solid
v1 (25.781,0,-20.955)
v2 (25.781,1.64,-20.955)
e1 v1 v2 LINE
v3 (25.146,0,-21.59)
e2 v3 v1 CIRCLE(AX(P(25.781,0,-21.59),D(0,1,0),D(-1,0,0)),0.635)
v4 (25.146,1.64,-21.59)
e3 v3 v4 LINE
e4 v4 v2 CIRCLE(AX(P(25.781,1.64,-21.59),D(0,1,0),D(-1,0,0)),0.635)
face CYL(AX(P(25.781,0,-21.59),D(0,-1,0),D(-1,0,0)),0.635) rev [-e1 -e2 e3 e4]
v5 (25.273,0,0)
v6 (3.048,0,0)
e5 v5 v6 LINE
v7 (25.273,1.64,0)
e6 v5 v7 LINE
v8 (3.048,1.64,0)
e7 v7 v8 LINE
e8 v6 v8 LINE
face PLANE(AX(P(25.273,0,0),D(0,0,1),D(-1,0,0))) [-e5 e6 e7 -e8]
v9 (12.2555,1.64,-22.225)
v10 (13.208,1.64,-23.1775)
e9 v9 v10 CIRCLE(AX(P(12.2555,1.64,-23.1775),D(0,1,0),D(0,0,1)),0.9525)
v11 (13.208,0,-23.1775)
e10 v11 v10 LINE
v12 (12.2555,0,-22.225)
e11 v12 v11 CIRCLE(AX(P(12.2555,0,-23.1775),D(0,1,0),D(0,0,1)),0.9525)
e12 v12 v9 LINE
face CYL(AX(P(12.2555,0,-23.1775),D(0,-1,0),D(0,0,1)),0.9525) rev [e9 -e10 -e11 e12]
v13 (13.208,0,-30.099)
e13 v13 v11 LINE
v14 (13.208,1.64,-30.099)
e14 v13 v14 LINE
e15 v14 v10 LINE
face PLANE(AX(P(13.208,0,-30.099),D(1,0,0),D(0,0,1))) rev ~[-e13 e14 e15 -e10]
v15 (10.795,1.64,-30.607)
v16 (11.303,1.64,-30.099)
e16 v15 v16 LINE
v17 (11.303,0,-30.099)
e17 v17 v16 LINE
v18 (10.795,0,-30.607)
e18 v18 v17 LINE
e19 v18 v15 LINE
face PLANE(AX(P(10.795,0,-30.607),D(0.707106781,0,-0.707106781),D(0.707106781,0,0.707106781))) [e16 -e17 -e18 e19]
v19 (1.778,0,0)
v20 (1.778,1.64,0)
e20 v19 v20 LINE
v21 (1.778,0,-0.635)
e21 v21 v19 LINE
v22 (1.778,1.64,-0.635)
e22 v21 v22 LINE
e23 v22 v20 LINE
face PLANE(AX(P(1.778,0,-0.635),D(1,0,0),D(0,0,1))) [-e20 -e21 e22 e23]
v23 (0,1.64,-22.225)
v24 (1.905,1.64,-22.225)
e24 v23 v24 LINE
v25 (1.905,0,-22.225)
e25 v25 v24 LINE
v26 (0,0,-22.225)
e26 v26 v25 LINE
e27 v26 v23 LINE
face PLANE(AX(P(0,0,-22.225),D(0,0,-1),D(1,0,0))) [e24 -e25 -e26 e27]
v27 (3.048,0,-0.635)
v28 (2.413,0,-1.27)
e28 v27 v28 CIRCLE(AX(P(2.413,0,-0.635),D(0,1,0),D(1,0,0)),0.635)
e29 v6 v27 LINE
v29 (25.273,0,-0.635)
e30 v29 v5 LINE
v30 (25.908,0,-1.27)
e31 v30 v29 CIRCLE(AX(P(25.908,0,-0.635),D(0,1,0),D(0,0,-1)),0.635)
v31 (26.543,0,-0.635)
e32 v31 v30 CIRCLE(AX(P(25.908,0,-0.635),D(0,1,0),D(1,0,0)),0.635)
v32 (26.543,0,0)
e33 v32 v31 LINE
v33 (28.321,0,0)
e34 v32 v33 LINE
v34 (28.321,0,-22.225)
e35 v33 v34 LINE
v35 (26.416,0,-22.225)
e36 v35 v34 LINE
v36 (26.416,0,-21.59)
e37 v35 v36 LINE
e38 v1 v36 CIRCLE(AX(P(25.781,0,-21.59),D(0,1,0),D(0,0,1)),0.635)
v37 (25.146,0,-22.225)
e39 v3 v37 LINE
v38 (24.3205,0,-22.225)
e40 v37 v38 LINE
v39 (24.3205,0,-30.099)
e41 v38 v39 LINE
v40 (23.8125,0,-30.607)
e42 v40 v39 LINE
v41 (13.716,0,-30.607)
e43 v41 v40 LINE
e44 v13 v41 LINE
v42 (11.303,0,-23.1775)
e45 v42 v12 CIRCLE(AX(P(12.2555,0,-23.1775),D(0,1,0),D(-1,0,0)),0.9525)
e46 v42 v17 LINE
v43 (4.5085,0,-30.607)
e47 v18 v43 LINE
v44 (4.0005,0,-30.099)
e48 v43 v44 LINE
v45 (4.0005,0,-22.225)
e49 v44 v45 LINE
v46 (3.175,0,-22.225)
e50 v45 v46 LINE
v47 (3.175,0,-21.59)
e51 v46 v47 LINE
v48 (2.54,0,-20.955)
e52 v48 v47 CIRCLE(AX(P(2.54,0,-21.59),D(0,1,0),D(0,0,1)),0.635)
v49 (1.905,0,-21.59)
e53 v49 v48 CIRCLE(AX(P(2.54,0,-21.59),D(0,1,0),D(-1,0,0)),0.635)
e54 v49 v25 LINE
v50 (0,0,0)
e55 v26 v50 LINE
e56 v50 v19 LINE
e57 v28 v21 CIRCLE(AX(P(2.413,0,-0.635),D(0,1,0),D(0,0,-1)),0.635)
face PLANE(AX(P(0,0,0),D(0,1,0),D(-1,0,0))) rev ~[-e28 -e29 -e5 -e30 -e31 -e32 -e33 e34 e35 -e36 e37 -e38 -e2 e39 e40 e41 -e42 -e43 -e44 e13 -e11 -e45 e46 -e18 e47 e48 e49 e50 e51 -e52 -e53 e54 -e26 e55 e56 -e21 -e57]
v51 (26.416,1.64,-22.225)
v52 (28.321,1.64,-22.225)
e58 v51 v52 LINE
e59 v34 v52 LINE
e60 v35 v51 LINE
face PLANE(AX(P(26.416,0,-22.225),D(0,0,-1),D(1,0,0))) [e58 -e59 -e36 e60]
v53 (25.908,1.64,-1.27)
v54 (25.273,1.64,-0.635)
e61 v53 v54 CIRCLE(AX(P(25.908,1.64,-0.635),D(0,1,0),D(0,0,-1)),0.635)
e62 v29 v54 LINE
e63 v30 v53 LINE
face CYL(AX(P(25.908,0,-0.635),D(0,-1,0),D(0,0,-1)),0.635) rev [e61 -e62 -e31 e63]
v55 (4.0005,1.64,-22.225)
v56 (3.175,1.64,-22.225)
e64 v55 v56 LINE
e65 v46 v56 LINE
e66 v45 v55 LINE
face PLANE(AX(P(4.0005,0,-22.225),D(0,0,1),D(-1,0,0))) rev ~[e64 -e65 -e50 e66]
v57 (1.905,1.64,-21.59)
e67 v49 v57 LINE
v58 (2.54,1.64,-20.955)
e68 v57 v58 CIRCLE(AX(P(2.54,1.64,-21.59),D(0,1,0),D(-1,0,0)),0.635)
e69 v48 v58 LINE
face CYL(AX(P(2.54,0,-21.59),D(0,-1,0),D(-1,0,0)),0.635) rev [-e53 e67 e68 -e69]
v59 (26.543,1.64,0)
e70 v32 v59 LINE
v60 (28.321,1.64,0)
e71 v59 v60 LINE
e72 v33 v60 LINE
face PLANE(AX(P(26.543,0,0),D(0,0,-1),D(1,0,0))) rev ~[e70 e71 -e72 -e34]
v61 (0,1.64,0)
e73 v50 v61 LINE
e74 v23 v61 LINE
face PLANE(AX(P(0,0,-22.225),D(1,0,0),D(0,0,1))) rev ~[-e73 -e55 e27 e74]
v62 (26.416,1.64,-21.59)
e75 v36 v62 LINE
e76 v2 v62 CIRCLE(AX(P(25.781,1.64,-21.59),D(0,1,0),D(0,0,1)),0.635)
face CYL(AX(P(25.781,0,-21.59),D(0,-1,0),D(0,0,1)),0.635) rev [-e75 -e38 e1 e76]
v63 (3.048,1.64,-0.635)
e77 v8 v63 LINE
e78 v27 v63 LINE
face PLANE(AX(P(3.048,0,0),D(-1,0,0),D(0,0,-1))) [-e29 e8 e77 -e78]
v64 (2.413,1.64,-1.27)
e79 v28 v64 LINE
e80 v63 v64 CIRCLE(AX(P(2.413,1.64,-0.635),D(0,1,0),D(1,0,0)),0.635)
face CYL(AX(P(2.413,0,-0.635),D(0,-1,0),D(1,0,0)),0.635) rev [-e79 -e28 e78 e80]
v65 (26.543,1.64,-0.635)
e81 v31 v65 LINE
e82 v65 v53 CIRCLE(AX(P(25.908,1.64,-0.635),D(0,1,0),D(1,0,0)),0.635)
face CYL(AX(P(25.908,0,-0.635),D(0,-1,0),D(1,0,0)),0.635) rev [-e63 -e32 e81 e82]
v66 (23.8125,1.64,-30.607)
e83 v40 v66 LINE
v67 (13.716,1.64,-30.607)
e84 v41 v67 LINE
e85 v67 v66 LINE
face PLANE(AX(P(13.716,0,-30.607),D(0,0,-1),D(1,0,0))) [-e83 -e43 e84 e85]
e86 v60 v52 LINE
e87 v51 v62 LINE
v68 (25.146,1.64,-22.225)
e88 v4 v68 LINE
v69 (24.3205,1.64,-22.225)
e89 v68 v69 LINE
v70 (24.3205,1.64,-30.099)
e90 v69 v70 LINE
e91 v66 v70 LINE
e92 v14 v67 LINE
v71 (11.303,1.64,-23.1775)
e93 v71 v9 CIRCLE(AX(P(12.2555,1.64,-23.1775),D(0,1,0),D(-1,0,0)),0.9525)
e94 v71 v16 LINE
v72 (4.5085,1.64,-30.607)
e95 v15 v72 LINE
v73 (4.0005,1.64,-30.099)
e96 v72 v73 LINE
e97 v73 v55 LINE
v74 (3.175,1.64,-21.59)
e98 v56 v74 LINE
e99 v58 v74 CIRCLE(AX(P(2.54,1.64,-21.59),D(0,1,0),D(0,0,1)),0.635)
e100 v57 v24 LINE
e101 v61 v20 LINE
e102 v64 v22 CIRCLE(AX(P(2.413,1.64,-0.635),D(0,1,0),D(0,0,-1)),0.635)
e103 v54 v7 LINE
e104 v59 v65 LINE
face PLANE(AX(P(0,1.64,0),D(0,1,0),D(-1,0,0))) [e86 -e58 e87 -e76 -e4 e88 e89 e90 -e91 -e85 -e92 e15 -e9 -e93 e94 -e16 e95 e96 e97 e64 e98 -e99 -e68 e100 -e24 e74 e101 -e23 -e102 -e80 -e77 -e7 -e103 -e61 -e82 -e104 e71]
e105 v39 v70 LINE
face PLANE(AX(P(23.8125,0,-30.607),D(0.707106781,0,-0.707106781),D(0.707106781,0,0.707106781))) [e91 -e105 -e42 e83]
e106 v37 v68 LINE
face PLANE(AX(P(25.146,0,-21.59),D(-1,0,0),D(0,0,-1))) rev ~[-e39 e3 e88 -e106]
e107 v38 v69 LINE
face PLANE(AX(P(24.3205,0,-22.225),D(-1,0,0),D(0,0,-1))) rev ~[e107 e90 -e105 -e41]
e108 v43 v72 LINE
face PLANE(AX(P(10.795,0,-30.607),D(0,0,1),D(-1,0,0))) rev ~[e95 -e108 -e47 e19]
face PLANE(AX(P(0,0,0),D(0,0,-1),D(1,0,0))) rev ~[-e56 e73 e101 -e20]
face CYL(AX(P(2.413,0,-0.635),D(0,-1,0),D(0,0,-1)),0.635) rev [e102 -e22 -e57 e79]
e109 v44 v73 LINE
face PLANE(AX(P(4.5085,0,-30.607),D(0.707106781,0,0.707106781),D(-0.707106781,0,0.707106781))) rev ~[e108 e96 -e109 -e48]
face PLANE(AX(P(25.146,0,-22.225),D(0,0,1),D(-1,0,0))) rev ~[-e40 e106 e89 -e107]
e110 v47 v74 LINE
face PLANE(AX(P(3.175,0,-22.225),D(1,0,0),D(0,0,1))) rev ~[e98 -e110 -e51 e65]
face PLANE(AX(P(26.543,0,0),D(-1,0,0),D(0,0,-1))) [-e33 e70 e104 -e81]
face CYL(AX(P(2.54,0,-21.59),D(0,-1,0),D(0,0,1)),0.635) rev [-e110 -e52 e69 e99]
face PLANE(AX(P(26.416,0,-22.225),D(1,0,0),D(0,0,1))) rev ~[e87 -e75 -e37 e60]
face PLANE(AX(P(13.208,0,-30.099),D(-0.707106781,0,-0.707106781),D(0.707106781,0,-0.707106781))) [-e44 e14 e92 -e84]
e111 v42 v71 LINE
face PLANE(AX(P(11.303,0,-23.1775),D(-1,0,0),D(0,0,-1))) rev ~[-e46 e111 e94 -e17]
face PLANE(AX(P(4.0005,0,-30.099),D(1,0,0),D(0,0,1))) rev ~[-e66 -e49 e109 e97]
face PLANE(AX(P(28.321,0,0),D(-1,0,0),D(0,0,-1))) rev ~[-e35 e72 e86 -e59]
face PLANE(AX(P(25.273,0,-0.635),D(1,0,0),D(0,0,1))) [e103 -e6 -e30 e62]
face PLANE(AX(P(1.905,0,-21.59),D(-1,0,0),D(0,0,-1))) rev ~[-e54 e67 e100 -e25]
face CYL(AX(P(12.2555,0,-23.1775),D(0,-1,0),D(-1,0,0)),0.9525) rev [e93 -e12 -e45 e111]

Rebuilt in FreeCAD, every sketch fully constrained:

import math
import FreeCAD as App
import Part
import Sketcher
from FreeCAD import Vector
Q = App.Units.Quantity

doc = App.newDocument("Part")
body = doc.addObject("PartDesign::Body", "Body")

sketch1 = body.newObject("Sketcher::SketchObject", "Sketch")
sketch1.AttachmentSupport = (doc.getObject("XZ_Plane"), [""])
sketch1.MapMode = "FlatFace"
sketch1.addGeometry(Part.LineSegment(Vector(26.543, 0, 0), Vector(28.321, 0, 0)), False)
sketch1.addGeometry(Part.LineSegment(Vector(28.321, 0, 0), Vector(28.321, -22.225, 0)), False)
sketch1.addGeometry(Part.LineSegment(Vector(28.321, -22.225, 0), Vector(26.416, -22.225, 0)), False)
sketch1.addGeometry(Part.LineSegment(Vector(26.416, -22.225, 0), Vector(26.416, -21.59, 0)), False)
sketch1.addGeometry(Part.ArcOfCircle(Part.Circle(Vector(25.781, -21.59, 0), Vector(0, 0, 1), 0.635), math.radians(0), math.radians(180)), False)
sketch1.addGeometry(Part.LineSegment(Vector(25.146, -21.59, 0), Vector(25.146, -22.225, 0)), False)
sketch1.addGeometry(Part.LineSegment(Vector(25.146, -22.225, 0), Vector(24.3205, -22.225, 0)), False)
sketch1.addGeometry(Part.LineSegment(Vector(24.3205, -22.225, 0), Vector(24.3205, -30.099, 0)), False)
sketch1.addGeometry(Part.LineSegment(Vector(24.3205, -30.099, 0), Vector(23.8125, -30.607, 0)), False)
sketch1.addGeometry(Part.LineSegment(Vector(23.8125, -30.607, 0), Vector(13.716, -30.607, 0)), False)
sketch1.addGeometry(Part.LineSegment(Vector(13.716, -30.607, 0), Vector(13.208, -30.099, 0)), False)
sketch1.addGeometry(Part.LineSegment(Vector(13.208, -30.099, 0), Vector(13.208, -23.1775, 0)), False)
sketch1.addGeometry(Part.ArcOfCircle(Part.Circle(Vector(12.2555, -23.1775, 0), Vector(0, 0, 1), 0.9525), math.radians(0), math.radians(180)), False)
sketch1.addGeometry(Part.LineSegment(Vector(11.303, -23.1775, 0), Vector(11.303, -30.099, 0)), False)
sketch1.addGeometry(Part.LineSegment(Vector(11.303, -30.099, 0), Vector(10.795, -30.607, 0)), False)
sketch1.addGeometry(Part.LineSegment(Vector(10.795, -30.607, 0), Vector(4.5085, -30.607, 0)), False)
sketch1.addGeometry(Part.LineSegment(Vector(4.5085, -30.607, 0), Vector(4.0005, -30.099, 0)), False)
sketch1.addGeometry(Part.LineSegment(Vector(4.0005, -30.099, 0), Vector(4.0005, -22.225, 0)), False)
sketch1.addGeometry(Part.LineSegment(Vector(4.0005, -22.225, 0), Vector(3.175, -22.225, 0)), False)
sketch1.addGeometry(Part.LineSegment(Vector(3.175, -22.225, 0), Vector(3.175, -21.59, 0)), False)
sketch1.addGeometry(Part.ArcOfCircle(Part.Circle(Vector(2.54, -21.59, 0), Vector(0, 0, 1), 0.635), math.radians(0), math.radians(180)), False)
sketch1.addGeometry(Part.LineSegment(Vector(1.905, -21.59, 0), Vector(1.905, -22.225, 0)), False)
sketch1.addGeometry(Part.LineSegment(Vector(1.905, -22.225, 0), Vector(0, -22.225, 0)), False)
sketch1.addGeometry(Part.LineSegment(Vector(0, -22.225, 0), Vector(0, 0, 0)), False)
sketch1.addGeometry(Part.LineSegment(Vector(0, 0, 0), Vector(1.778, 0, 0)), False)
sketch1.addGeometry(Part.LineSegment(Vector(1.778, 0, 0), Vector(1.778, -0.635, 0)), False)
sketch1.addGeometry(Part.ArcOfCircle(Part.Circle(Vector(2.413, -0.635, 0), Vector(0, 0, 1), 0.635), math.radians(180), math.radians(360)), False)
sketch1.addGeometry(Part.LineSegment(Vector(3.048, -0.635, 0), Vector(3.048, 0, 0)), False)
sketch1.addGeometry(Part.LineSegment(Vector(3.048, 0, 0), Vector(25.273, 0, 0)), False)
sketch1.addGeometry(Part.LineSegment(Vector(25.273, 0, 0), Vector(25.273, -0.635, 0)), False)
sketch1.addGeometry(Part.ArcOfCircle(Part.Circle(Vector(25.908, -0.635, 0), Vector(0, 0, 1), 0.635), math.radians(180), math.radians(360)), False)
sketch1.addGeometry(Part.LineSegment(Vector(26.543, -0.635, 0), Vector(26.543, 0, 0)), False)
sketch1.addConstraint(Sketcher.Constraint("Coincident", 0, 2, 1, 1))
sketch1.addConstraint(Sketcher.Constraint("Coincident", 1, 2, 2, 1))
sketch1.addConstraint(Sketcher.Constraint("Coincident", 2, 2, 3, 1))
sketch1.addConstraint(Sketcher.Constraint("Tangent", 3, 2, 4, 1))
sketch1.addConstraint(Sketcher.Constraint("Tangent", 4, 2, 5, 1))
sketch1.addConstraint(Sketcher.Constraint("Coincident", 5, 2, 6, 1))
sketch1.addConstraint(Sketcher.Constraint("Coincident", 6, 2, 7, 1))
sketch1.addConstraint(Sketcher.Constraint("Coincident", 7, 2, 8, 1))
sketch1.addConstraint(Sketcher.Constraint("Coincident", 8, 2, 9, 1))
sketch1.addConstraint(Sketcher.Constraint("Coincident", 9, 2, 10, 1))
sketch1.addConstraint(Sketcher.Constraint("Coincident", 10, 2, 11, 1))
sketch1.addConstraint(Sketcher.Constraint("Tangent", 11, 2, 12, 1))
sketch1.addConstraint(Sketcher.Constraint("Tangent", 12, 2, 13, 1))
sketch1.addConstraint(Sketcher.Constraint("Coincident", 13, 2, 14, 1))
sketch1.addConstraint(Sketcher.Constraint("Coincident", 14, 2, 15, 1))
sketch1.addConstraint(Sketcher.Constraint("Coincident", 15, 2, 16, 1))
sketch1.addConstraint(Sketcher.Constraint("Coincident", 16, 2, 17, 1))
sketch1.addConstraint(Sketcher.Constraint("Coincident", 17, 2, 18, 1))
sketch1.addConstraint(Sketcher.Constraint("Coincident", 18, 2, 19, 1))
sketch1.addConstraint(Sketcher.Constraint("Tangent", 19, 2, 20, 1))
sketch1.addConstraint(Sketcher.Constraint("Tangent", 20, 2, 21, 1))
sketch1.addConstraint(Sketcher.Constraint("Coincident", 21, 2, 22, 1))
sketch1.addConstraint(Sketcher.Constraint("Coincident", 22, 2, 23, 1))
sketch1.addConstraint(Sketcher.Constraint("Coincident", 23, 2, 24, 1))
sketch1.addConstraint(Sketcher.Constraint("Coincident", 24, 2, 25, 1))
sketch1.addConstraint(Sketcher.Constraint("Tangent", 25, 2, 26, 1))
sketch1.addConstraint(Sketcher.Constraint("Tangent", 26, 2, 27, 1))
sketch1.addConstraint(Sketcher.Constraint("Coincident", 27, 2, 28, 1))
sketch1.addConstraint(Sketcher.Constraint("Coincident", 28, 2, 29, 1))
sketch1.addConstraint(Sketcher.Constraint("Tangent", 29, 2, 30, 1))
sketch1.addConstraint(Sketcher.Constraint("Tangent", 30, 2, 31, 1))
sketch1.addConstraint(Sketcher.Constraint("Coincident", 31, 2, 0, 1))
sketch1.addConstraint(Sketcher.Constraint("Horizontal", 0))
sketch1.addConstraint(Sketcher.Constraint("Vertical", 1))
sketch1.addConstraint(Sketcher.Constraint("Horizontal", 2))
sketch1.addConstraint(Sketcher.Constraint("Vertical", 3))
sketch1.addConstraint(Sketcher.Constraint("Vertical", 5))
sketch1.addConstraint(Sketcher.Constraint("Horizontal", 6))
sketch1.addConstraint(Sketcher.Constraint("Vertical", 7))
sketch1.addConstraint(Sketcher.Constraint("Horizontal", 9))
sketch1.addConstraint(Sketcher.Constraint("Vertical", 11))
sketch1.addConstraint(Sketcher.Constraint("Vertical", 13))
sketch1.addConstraint(Sketcher.Constraint("Horizontal", 15))
sketch1.addConstraint(Sketcher.Constraint("Vertical", 17))
sketch1.addConstraint(Sketcher.Constraint("Horizontal", 18))
sketch1.addConstraint(Sketcher.Constraint("Vertical", 19))
sketch1.addConstraint(Sketcher.Constraint("Vertical", 21))
sketch1.addConstraint(Sketcher.Constraint("Horizontal", 22))
sketch1.addConstraint(Sketcher.Constraint("Vertical", 23))
sketch1.addConstraint(Sketcher.Constraint("Horizontal", 24))
sketch1.addConstraint(Sketcher.Constraint("Vertical", 25))
sketch1.addConstraint(Sketcher.Constraint("Vertical", 27))
sketch1.addConstraint(Sketcher.Constraint("Horizontal", 28))
sketch1.addConstraint(Sketcher.Constraint("Vertical", 29))
sketch1.addConstraint(Sketcher.Constraint("Vertical", 31))
sketch1.addConstraint(Sketcher.Constraint("Coincident", 23, 2, -1, 1))
sketch1.addConstraint(Sketcher.Constraint("Equal", 4, 20))
sketch1.addConstraint(Sketcher.Constraint("Equal", 20, 26))
sketch1.addConstraint(Sketcher.Constraint("Equal", 26, 30))
sketch1.addConstraint(Sketcher.Constraint("PointOnObject", 0, 2, -1))
sketch1.addConstraint(Sketcher.Constraint("PointOnObject", 27, 2, -1))
sketch1.addConstraint(Sketcher.Constraint("Perpendicular", 8, 10))
sketch1.addConstraint(Sketcher.Constraint("Perpendicular", 10, 14))
sketch1.addConstraint(Sketcher.Constraint("Perpendicular", 14, 16))
sketch1.addConstraint(Sketcher.Constraint("Horizontal", 4, 3, 20, 3))
sketch1.addConstraint(Sketcher.Constraint("Horizontal", 26, 3, 30, 3))
sketch1.addConstraint(Sketcher.Constraint("Horizontal", 2, 2, 5, 2))
sketch1.addConstraint(Sketcher.Constraint("Horizontal", 7, 2, 10, 2))
sketch1.addConstraint(Sketcher.Constraint("Horizontal", 10, 2, 13, 2))
sketch1.addConstraint(Sketcher.Constraint("Horizontal", 9, 2, 14, 2))
sketch1.addConstraint(Sketcher.Constraint("Horizontal", 13, 2, 16, 2))
sketch1.addConstraint(Sketcher.Constraint("Horizontal", 6, 2, 17, 2))
sketch1.addConstraint(Sketcher.Constraint("Horizontal", 18, 2, 21, 2))
sketch1.addConstraint(Sketcher.Constraint("Equal", 6, 18))
sketch1.addConstraint(Sketcher.Constraint("Equal", 2, 22))
sketch1.addConstraint(Sketcher.Constraint("Equal", 0, 24))
sketch1.addConstraint(Sketcher.Constraint("Equal", 28, 1))
sketch1.addConstraint(Sketcher.Constraint("Equal", 21, 25))
sketch1.addConstraint(Sketcher.Constraint("Equal", 8, 10))
sketch1.addConstraint(Sketcher.Constraint("Radius", 4, Q("0.025 in")))
sketch1.addConstraint(Sketcher.Constraint("DistanceX", -1, 1, 20, 3, Q("0.1 in")))
sketch1.addConstraint(Sketcher.Constraint("Radius", 12, Q("0.0375 in")))
sketch1.addConstraint(Sketcher.Constraint("DistanceX", 28, 1, 28, 2, Q("0.875 in")))
sketch1.addConstraint(Sketcher.Constraint("DistanceY", 3, 1, 3, 2, Q("0.025 in")))
sketch1.addConstraint(Sketcher.Constraint("DistanceX", 30, 3, 2, 2, Q("0.02 in")))
sketch1.addConstraint(Sketcher.Constraint("DistanceX", 8, 2, 7, 2, Q("0.02 in")))
sketch1.addConstraint(Sketcher.Constraint("DistanceY", 8, 2, 6, 2, Q("0.33 in")))
sketch1.addConstraint(Sketcher.Constraint("DistanceX", 17, 2, 12, 3, Q("0.325 in")))
sketch1.addConstraint(Sketcher.Constraint("DistanceY", 12, 3, 1, 2, Q("0.0375 in")))
sketch1.addConstraint(Sketcher.Constraint("DistanceX", -1, 1, 9, 2, Q("0.54 in")))
pad1 = body.newObject("PartDesign::Pad", "Pad")
pad1.Profile = sketch1
pad1.Length = 1.64
pad1.Reversed = True

doc.recompute()
